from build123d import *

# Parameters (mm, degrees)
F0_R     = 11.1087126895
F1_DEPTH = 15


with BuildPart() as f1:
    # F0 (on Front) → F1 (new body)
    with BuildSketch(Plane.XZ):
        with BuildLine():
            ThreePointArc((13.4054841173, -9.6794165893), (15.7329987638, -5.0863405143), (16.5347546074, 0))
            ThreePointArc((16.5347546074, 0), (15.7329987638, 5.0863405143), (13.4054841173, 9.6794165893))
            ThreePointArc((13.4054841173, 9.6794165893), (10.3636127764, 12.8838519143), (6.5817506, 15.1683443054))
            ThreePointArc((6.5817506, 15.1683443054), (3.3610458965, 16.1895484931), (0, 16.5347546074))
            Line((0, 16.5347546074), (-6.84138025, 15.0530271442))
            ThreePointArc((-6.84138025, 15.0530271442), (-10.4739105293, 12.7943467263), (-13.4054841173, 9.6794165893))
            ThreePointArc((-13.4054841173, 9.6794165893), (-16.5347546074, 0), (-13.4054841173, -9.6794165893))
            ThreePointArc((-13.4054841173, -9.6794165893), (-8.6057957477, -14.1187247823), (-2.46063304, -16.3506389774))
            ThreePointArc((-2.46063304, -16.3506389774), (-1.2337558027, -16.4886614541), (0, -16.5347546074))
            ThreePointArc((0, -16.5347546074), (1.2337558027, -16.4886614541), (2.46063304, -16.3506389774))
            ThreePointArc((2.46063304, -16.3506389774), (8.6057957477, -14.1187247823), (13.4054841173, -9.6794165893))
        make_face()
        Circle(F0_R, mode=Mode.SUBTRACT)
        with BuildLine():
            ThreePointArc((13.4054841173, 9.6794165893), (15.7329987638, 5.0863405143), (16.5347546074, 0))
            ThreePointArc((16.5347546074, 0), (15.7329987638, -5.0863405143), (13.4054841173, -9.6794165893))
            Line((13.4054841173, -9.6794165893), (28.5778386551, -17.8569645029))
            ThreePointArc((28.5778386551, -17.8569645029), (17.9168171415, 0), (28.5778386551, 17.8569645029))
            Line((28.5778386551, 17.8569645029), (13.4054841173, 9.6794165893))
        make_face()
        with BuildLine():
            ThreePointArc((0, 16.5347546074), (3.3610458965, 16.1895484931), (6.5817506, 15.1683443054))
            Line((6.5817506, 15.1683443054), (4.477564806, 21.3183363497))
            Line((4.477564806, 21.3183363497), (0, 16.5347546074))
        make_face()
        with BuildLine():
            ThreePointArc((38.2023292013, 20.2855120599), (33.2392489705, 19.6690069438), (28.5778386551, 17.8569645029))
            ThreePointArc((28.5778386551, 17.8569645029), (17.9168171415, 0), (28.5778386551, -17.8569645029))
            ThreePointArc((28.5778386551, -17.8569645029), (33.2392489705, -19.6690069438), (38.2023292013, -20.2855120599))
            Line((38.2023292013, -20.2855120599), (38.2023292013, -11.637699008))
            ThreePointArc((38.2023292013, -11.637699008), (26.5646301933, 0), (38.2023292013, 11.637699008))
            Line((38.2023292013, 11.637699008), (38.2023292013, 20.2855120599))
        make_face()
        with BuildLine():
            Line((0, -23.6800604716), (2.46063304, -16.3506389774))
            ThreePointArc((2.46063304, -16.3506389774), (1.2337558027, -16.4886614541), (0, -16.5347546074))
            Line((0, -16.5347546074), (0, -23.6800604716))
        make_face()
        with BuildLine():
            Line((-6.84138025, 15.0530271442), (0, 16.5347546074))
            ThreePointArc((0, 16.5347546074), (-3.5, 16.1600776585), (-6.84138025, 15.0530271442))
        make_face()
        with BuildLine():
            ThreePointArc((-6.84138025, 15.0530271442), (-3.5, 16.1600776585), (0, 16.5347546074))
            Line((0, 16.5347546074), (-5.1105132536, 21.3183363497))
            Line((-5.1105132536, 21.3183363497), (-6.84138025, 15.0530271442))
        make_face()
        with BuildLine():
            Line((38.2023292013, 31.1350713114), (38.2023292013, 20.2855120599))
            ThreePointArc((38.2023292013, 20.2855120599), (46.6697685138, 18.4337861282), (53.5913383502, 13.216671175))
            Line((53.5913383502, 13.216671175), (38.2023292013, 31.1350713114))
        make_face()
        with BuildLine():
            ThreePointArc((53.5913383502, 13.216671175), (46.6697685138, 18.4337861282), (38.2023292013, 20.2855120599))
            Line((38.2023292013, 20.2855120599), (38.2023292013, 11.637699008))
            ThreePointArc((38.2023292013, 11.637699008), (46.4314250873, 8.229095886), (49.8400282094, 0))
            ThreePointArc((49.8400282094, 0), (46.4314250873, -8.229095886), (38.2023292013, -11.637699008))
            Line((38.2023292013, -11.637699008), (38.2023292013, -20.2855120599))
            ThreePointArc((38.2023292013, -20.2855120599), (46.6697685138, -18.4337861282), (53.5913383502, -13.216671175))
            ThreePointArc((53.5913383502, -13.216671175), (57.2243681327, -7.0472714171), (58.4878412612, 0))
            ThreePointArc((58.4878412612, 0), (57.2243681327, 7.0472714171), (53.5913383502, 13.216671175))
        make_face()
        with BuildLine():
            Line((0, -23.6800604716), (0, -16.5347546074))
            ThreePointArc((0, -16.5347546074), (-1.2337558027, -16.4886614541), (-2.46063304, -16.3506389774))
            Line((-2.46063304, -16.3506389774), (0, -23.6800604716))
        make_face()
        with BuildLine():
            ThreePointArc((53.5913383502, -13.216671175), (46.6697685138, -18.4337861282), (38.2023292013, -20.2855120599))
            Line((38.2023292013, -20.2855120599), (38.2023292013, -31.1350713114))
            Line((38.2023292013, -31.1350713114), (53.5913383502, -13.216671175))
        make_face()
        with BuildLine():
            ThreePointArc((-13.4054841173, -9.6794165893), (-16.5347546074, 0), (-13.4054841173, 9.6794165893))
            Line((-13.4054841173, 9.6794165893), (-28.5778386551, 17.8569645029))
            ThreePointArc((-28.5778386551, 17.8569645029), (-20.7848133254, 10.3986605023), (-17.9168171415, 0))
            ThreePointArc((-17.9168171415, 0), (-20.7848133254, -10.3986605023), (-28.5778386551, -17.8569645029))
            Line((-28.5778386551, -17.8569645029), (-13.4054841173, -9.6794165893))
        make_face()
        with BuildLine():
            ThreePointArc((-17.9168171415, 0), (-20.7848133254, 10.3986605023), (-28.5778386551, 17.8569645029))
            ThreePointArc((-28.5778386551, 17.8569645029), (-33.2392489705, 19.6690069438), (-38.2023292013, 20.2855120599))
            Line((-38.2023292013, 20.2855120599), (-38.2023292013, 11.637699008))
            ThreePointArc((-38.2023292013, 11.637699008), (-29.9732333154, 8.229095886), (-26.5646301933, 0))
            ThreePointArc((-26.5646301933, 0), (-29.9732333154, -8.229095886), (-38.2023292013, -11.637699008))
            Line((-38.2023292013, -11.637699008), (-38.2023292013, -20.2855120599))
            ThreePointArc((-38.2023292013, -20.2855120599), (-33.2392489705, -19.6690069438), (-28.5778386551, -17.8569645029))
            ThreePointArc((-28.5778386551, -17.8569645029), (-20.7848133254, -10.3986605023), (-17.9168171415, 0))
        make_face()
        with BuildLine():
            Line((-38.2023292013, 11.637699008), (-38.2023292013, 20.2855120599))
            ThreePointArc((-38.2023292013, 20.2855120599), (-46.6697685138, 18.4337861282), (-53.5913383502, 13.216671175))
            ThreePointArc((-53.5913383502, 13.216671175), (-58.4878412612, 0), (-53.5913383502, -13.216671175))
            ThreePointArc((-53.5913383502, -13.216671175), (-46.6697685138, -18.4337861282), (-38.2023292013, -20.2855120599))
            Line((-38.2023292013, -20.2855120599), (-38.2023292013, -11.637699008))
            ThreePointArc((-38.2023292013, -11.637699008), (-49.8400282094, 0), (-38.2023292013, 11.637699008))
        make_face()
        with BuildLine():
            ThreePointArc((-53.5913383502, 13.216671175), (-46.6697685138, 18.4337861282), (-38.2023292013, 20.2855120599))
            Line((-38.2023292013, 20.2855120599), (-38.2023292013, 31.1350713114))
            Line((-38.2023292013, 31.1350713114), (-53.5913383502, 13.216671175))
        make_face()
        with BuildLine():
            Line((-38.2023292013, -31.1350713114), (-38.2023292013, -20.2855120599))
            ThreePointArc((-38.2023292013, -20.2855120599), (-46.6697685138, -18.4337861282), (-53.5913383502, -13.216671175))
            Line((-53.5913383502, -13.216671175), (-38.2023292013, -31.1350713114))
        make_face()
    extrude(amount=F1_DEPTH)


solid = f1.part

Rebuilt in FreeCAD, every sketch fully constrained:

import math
import FreeCAD as App
import Part
import Sketcher
from FreeCAD import Vector

doc = App.newDocument("Part")
body = doc.addObject("PartDesign::Body", "Body")

# Sketch on XZ plane
sketch1 = body.newObject("Sketcher::SketchObject", "Sketch")
sketch1.AttachmentSupport = (doc.getObject("XZ_Plane"), [""])
sketch1.MapMode = "FlatFace"
sketch1.addGeometry(Part.ArcOfCircle(Part.Circle(Vector(0, 0, 0), Vector(0, 0, 1), 17), math.radians(-81), math.radians(-36)), False)
sketch1.addGeometry(Part.LineSegment(Vector(13, -10, 0), Vector(29, -18, 0)), False)
sketch1.addGeometry(Part.ArcOfCircle(Part.Circle(Vector(38, 0, 0), Vector(0, 0, 1), 20), math.radians(-118), math.radians(-90)), False)
sketch1.addGeometry(Part.LineSegment(Vector(38, -20, 0), Vector(38, -31, 0)), False)
sketch1.addGeometry(Part.LineSegment(Vector(38, -31, 0), Vector(54, -13, 0)), False)
sketch1.addGeometry(Part.ArcOfCircle(Part.Circle(Vector(38, 0, 0), Vector(0, 0, 1), 20), math.radians(-41), math.radians(0)), False)
sketch1.addGeometry(Part.ArcOfCircle(Part.Circle(Vector(38, 0, 0), Vector(0, 0, 1), 20), math.radians(0), math.radians(41)), False)
sketch1.addGeometry(Part.LineSegment(Vector(54, 13, 0), Vector(38, 31, 0)), False)
sketch1.addGeometry(Part.LineSegment(Vector(38, 31, 0), Vector(38, 20, 0)), False)
sketch1.addGeometry(Part.ArcOfCircle(Part.Circle(Vector(38, 0, 0), Vector(0, 0, 1), 20), math.radians(90), math.radians(118)), False)
sketch1.addGeometry(Part.LineSegment(Vector(29, 18, 0), Vector(13, 10, 0)), False)
sketch1.addGeometry(Part.ArcOfCircle(Part.Circle(Vector(0, 0, 0), Vector(0, 0, 1), 17), math.radians(36), math.radians(67)), False)
sketch1.addGeometry(Part.LineSegment(Vector(7, 15, 0), Vector(4, 21, 0)), False)
sketch1.addGeometry(Part.LineSegment(Vector(4, 21, 0), Vector(0, 17, 0)), False)
sketch1.addGeometry(Part.LineSegment(Vector(0, 17, 0), Vector(-5, 21, 0)), False)
sketch1.addGeometry(Part.LineSegment(Vector(-5, 21, 0), Vector(-7, 15, 0)), False)
sketch1.addGeometry(Part.ArcOfCircle(Part.Circle(Vector(0, 0, 0), Vector(0, 0, 1), 17), math.radians(114), math.radians(144)), False)
sketch1.addGeometry(Part.LineSegment(Vector(-13, 10, 0), Vector(-29, 18, 0)), False)
sketch1.addGeometry(Part.ArcOfCircle(Part.Circle(Vector(-38, 0, 0), Vector(0, 0, 1), 20), math.radians(62), math.radians(90)), False)
sketch1.addGeometry(Part.LineSegment(Vector(-38, 20, 0), Vector(-38, 31, 0)), False)
sketch1.addGeometry(Part.LineSegment(Vector(-38, 31, 0), Vector(-54, 13, 0)), False)
sketch1.addGeometry(Part.ArcOfCircle(Part.Circle(Vector(-38, 0, 0), Vector(0, 0, 1), 20), math.radians(139), math.radians(221)), False)
sketch1.addGeometry(Part.LineSegment(Vector(-54, -13, 0), Vector(-38, -31, 0)), False)
sketch1.addGeometry(Part.LineSegment(Vector(-38, -31, 0), Vector(-38, -20, 0)), False)
sketch1.addGeometry(Part.ArcOfCircle(Part.Circle(Vector(-38, 0, 0), Vector(0, 0, 1), 20), math.radians(-90), math.radians(-62)), False)
sketch1.addGeometry(Part.LineSegment(Vector(-29, -18, 0), Vector(-13, -10, 0)), False)
sketch1.addGeometry(Part.ArcOfCircle(Part.Circle(Vector(0, 0, 0), Vector(0, 0, 1), 17), math.radians(-144), math.radians(-99)), False)
sketch1.addGeometry(Part.LineSegment(Vector(-2, -16, 0), Vector(0, -24, 0)), False)
sketch1.addGeometry(Part.LineSegment(Vector(0, -24, 0), Vector(2, -16, 0)), False)
sketch1.addGeometry(Part.ArcOfCircle(Part.Circle(Vector(-38, 0, 0), Vector(0, 0, 1), 12), math.radians(0), math.radians(90)), False)
sketch1.addGeometry(Part.ArcOfCircle(Part.Circle(Vector(-38, 0, 0), Vector(0, 0, 1), 12), math.radians(-90), math.radians(0)), False)
sketch1.addGeometry(Part.ArcOfCircle(Part.Circle(Vector(-38, 0, 0), Vector(0, 0, 1), 12), math.radians(90), math.radians(270)), False)
sketch1.addGeometry(Part.ArcOfCircle(Part.Circle(Vector(38, 0, 0), Vector(0, 0, 1), 12), math.radians(90), math.radians(270)), False)
sketch1.addGeometry(Part.ArcOfCircle(Part.Circle(Vector(38, 0, 0), Vector(0, 0, 1), 12), math.radians(0), math.radians(90)), False)
sketch1.addGeometry(Part.ArcOfCircle(Part.Circle(Vector(38, 0, 0), Vector(0, 0, 1), 12), math.radians(-90), math.radians(0)), False)
sketch1.addGeometry(Part.Circle(Vector(0, 0, 0), Vector(0, 0, 1), 11), False)
sketch1.addConstraint(Sketcher.Constraint("Coincident", 0, 2, 1, 1))
sketch1.addConstraint(Sketcher.Constraint("Tangent", 1, 2, 2, 1))
sketch1.addConstraint(Sketcher.Constraint("Coincident", 2, 2, 3, 1))
sketch1.addConstraint(Sketcher.Constraint("Coincident", 3, 2, 4, 1))
sketch1.addConstraint(Sketcher.Constraint("Tangent", 4, 2, 5, 1))
sketch1.addConstraint(Sketcher.Constraint("Tangent", 5, 2, 6, 1))
sketch1.addConstraint(Sketcher.Constraint("Tangent", 6, 2, 7, 1))
sketch1.addConstraint(Sketcher.Constraint("Coincident", 7, 2, 8, 1))
sketch1.addConstraint(Sketcher.Constraint("Coincident", 8, 2, 9, 1))
sketch1.addConstraint(Sketcher.Constraint("Tangent", 9, 2, 10, 1))
sketch1.addConstraint(Sketcher.Constraint("Coincident", 10, 2, 11, 1))
sketch1.addConstraint(Sketcher.Constraint("Coincident", 11, 2, 12, 1))
sketch1.addConstraint(Sketcher.Constraint("Coincident", 12, 2, 13, 1))
sketch1.addConstraint(Sketcher.Constraint("Coincident", 13, 2, 14, 1))
sketch1.addConstraint(Sketcher.Constraint("Coincident", 14, 2, 15, 1))
sketch1.addConstraint(Sketcher.Constraint("Coincident", 15, 2, 16, 1))
sketch1.addConstraint(Sketcher.Constraint("Coincident", 16, 2, 17, 1))
sketch1.addConstraint(Sketcher.Constraint("Tangent", 17, 2, 18, 1))
sketch1.addConstraint(Sketcher.Constraint("Coincident", 18, 2, 19, 1))
sketch1.addConstraint(Sketcher.Constraint("Coincident", 19, 2, 20, 1))
sketch1.addConstraint(Sketcher.Constraint("Tangent", 20, 2, 21, 1))
sketch1.addConstraint(Sketcher.Constraint("Tangent", 21, 2, 22, 1))
sketch1.addConstraint(Sketcher.Constraint("Coincident", 22, 2, 23, 1))
sketch1.addConstraint(Sketcher.Constraint("Coincident", 23, 2, 24, 1))
sketch1.addConstraint(Sketcher.Constraint("Tangent", 24, 2, 25, 1))
sketch1.addConstraint(Sketcher.Constraint("Coincident", 25, 2, 26, 1))
sketch1.addConstraint(Sketcher.Constraint("Coincident", 26, 2, 27, 1))
sketch1.addConstraint(Sketcher.Constraint("Coincident", 27, 2, 28, 1))
sketch1.addConstraint(Sketcher.Constraint("Coincident", 28, 2, 0, 1))
sketch1.addConstraint(Sketcher.Constraint("Tangent", 29, 1, 30, 2))
sketch1.addConstraint(Sketcher.Constraint("Tangent", 30, 1, 31, 2))
sketch1.addConstraint(Sketcher.Constraint("Tangent", 31, 1, 29, 2))
sketch1.addConstraint(Sketcher.Constraint("Tangent", 32, 1, 33, 2))
sketch1.addConstraint(Sketcher.Constraint("Tangent", 33, 1, 34, 2))
sketch1.addConstraint(Sketcher.Constraint("Tangent", 34, 1, 32, 2))
sketch1.addConstraint(Sketcher.Constraint("Vertical", 3))
sketch1.addConstraint(Sketcher.Constraint("Vertical", 8))
sketch1.addConstraint(Sketcher.Constraint("Vertical", 19))
sketch1.addConstraint(Sketcher.Constraint("Vertical", 23))
sketch1.addConstraint(Sketcher.Constraint("Coincident", 0, 3, -1, 1))
sketch1.addConstraint(Sketcher.Constraint("Coincident", 11, 3, -1, 1))
sketch1.addConstraint(Sketcher.Constraint("Coincident", 16, 3, -1, 1))
sketch1.addConstraint(Sketcher.Constraint("Coincident", 26, 3, -1, 1))
sketch1.addConstraint(Sketcher.Constraint("Coincident", 35, 3, -1, 1))
sketch1.addConstraint(Sketcher.Constraint("Coincident", 5, 3, 2, 3))
sketch1.addConstraint(Sketcher.Constraint("Coincident", 9, 3, 2, 3))
sketch1.addConstraint(Sketcher.Constraint("Coincident", 21, 3, 18, 3))
sketch1.addConstraint(Sketcher.Constraint("Coincident", 24, 3, 18, 3))
sketch1.addConstraint(Sketcher.Constraint("Coincident", 29, 3, 18, 3))
sketch1.addConstraint(Sketcher.Constraint("Coincident", 32, 3, 2, 3))
sketch1.addConstraint(Sketcher.Constraint("Equal", 2, 5))
sketch1.addConstraint(Sketcher.Constraint("Equal", 5, 6))
sketch1.addConstraint(Sketcher.Constraint("Equal", 6, 9))
sketch1.addConstraint(Sketcher.Constraint("Equal", 0, 11))
sketch1.addConstraint(Sketcher.Constraint("Equal", 11, 16))
sketch1.addConstraint(Sketcher.Constraint("Equal", 9, 18))
sketch1.addConstraint(Sketcher.Constraint("Equal", 18, 21))
sketch1.addConstraint(Sketcher.Constraint("Equal", 21, 24))
sketch1.addConstraint(Sketcher.Constraint("Equal", 16, 26))
sketch1.addConstraint(Sketcher.Constraint("Equal", 31, 32))
sketch1.addConstraint(Sketcher.Constraint("Symmetric", 2, 3, 18, 3, -1, 1))
sketch1.addConstraint(Sketcher.Constraint("Symmetric", 3, 2, 19, 2, -1, 1))
sketch1.addConstraint(Sketcher.Constraint("Symmetric", 7, 2, 22, 2, -1, 1))
sketch1.addConstraint(Sketcher.Constraint("Symmetric", 9, 2, 17, 2, -2))
sketch1.addConstraint(Sketcher.Constraint("Symmetric", 7, 2, 19, 2, -2))
sketch1.addConstraint(Sketcher.Constraint("PointOnObject", 5, 2, -1))
sketch1.addConstraint(Sketcher.Constraint("PointOnObject", 13, 2, -2))
sketch1.addConstraint(Sketcher.Constraint("PointOnObject", 27, 2, -2))
sketch1.addConstraint(Sketcher.Constraint("PointOnObject", 29, 1, -1))
sketch1.addConstraint(Sketcher.Constraint("PointOnObject", 33, 1, -1))
sketch1.addConstraint(Sketcher.Constraint("Perpendicular", 13, 14))
sketch1.addConstraint(Sketcher.Constraint("Parallel", 1, 17))
sketch1.addConstraint(Sketcher.Constraint("Parallel", 10, 25))
sketch1.addConstraint(Sketcher.Constraint("Horizontal", 12, 2, 14, 2))
sketch1.addConstraint(Sketcher.Constraint("Horizontal", 26, 2, 28, 2))
sketch1.addConstraint(Sketcher.Constraint("Vertical", 34, 3, 2, 2))
sketch1.addConstraint(Sketcher.Constraint("Vertical", 23, 2, 30, 1))
sketch1.addConstraint(Sketcher.Constraint("Vertical", 30, 1, 31, 1))
sketch1.addConstraint(Sketcher.Constraint("Vertical", 8, 2, 32, 1))
sketch1.addConstraint(Sketcher.Constraint("Vertical", 32, 1, 34, 1))
sketch1.addConstraint(Sketcher.Constraint("Equal", 12, 15))
sketch1.addConstraint(Sketcher.Constraint("Distance", 14, 7.0))
sketch1.addConstraint(Sketcher.Constraint("Distance", 12, 6.5))
sketch1.addConstraint(Sketcher.Constraint("Radius", 29, 11.637699))
sketch1.addConstraint(Sketcher.Constraint("Diameter", 35, 22.217425))
sketch1.addConstraint(Sketcher.Constraint("Radius", 0, 16.534755))
sketch1.addConstraint(Sketcher.Constraint("Radius", 2, 20.285512))
sketch1.addConstraint(Sketcher.Constraint("DistanceY", 3, 2, 3, 1, 10.849559))
sketch1.addConstraint(Sketcher.Constraint("Distance", 27, 7.731438))
sketch1.addConstraint(Sketcher.Constraint("DistanceX", -1, 1, 2, 3, 38.202329))
sketch1.addConstraint(Sketcher.Constraint("DistanceX", -1, 1, 1, 2, 28.577839))
sketch1.addConstraint(Sketcher.Constraint("DistanceX", -1, 1, 11, 2, 6.581751))
sketch1.addConstraint(Sketcher.Constraint("DistanceX", 15, 2, -1, 1, 6.84138))
sketch1.addConstraint(Sketcher.Constraint("DistanceY", 26, 2, -1, 1, 16.350639))
pad1 = body.newObject("PartDesign::Pad", "Pad")
pad1.Profile = sketch1
pad1.Length = 15

doc.recompute()
